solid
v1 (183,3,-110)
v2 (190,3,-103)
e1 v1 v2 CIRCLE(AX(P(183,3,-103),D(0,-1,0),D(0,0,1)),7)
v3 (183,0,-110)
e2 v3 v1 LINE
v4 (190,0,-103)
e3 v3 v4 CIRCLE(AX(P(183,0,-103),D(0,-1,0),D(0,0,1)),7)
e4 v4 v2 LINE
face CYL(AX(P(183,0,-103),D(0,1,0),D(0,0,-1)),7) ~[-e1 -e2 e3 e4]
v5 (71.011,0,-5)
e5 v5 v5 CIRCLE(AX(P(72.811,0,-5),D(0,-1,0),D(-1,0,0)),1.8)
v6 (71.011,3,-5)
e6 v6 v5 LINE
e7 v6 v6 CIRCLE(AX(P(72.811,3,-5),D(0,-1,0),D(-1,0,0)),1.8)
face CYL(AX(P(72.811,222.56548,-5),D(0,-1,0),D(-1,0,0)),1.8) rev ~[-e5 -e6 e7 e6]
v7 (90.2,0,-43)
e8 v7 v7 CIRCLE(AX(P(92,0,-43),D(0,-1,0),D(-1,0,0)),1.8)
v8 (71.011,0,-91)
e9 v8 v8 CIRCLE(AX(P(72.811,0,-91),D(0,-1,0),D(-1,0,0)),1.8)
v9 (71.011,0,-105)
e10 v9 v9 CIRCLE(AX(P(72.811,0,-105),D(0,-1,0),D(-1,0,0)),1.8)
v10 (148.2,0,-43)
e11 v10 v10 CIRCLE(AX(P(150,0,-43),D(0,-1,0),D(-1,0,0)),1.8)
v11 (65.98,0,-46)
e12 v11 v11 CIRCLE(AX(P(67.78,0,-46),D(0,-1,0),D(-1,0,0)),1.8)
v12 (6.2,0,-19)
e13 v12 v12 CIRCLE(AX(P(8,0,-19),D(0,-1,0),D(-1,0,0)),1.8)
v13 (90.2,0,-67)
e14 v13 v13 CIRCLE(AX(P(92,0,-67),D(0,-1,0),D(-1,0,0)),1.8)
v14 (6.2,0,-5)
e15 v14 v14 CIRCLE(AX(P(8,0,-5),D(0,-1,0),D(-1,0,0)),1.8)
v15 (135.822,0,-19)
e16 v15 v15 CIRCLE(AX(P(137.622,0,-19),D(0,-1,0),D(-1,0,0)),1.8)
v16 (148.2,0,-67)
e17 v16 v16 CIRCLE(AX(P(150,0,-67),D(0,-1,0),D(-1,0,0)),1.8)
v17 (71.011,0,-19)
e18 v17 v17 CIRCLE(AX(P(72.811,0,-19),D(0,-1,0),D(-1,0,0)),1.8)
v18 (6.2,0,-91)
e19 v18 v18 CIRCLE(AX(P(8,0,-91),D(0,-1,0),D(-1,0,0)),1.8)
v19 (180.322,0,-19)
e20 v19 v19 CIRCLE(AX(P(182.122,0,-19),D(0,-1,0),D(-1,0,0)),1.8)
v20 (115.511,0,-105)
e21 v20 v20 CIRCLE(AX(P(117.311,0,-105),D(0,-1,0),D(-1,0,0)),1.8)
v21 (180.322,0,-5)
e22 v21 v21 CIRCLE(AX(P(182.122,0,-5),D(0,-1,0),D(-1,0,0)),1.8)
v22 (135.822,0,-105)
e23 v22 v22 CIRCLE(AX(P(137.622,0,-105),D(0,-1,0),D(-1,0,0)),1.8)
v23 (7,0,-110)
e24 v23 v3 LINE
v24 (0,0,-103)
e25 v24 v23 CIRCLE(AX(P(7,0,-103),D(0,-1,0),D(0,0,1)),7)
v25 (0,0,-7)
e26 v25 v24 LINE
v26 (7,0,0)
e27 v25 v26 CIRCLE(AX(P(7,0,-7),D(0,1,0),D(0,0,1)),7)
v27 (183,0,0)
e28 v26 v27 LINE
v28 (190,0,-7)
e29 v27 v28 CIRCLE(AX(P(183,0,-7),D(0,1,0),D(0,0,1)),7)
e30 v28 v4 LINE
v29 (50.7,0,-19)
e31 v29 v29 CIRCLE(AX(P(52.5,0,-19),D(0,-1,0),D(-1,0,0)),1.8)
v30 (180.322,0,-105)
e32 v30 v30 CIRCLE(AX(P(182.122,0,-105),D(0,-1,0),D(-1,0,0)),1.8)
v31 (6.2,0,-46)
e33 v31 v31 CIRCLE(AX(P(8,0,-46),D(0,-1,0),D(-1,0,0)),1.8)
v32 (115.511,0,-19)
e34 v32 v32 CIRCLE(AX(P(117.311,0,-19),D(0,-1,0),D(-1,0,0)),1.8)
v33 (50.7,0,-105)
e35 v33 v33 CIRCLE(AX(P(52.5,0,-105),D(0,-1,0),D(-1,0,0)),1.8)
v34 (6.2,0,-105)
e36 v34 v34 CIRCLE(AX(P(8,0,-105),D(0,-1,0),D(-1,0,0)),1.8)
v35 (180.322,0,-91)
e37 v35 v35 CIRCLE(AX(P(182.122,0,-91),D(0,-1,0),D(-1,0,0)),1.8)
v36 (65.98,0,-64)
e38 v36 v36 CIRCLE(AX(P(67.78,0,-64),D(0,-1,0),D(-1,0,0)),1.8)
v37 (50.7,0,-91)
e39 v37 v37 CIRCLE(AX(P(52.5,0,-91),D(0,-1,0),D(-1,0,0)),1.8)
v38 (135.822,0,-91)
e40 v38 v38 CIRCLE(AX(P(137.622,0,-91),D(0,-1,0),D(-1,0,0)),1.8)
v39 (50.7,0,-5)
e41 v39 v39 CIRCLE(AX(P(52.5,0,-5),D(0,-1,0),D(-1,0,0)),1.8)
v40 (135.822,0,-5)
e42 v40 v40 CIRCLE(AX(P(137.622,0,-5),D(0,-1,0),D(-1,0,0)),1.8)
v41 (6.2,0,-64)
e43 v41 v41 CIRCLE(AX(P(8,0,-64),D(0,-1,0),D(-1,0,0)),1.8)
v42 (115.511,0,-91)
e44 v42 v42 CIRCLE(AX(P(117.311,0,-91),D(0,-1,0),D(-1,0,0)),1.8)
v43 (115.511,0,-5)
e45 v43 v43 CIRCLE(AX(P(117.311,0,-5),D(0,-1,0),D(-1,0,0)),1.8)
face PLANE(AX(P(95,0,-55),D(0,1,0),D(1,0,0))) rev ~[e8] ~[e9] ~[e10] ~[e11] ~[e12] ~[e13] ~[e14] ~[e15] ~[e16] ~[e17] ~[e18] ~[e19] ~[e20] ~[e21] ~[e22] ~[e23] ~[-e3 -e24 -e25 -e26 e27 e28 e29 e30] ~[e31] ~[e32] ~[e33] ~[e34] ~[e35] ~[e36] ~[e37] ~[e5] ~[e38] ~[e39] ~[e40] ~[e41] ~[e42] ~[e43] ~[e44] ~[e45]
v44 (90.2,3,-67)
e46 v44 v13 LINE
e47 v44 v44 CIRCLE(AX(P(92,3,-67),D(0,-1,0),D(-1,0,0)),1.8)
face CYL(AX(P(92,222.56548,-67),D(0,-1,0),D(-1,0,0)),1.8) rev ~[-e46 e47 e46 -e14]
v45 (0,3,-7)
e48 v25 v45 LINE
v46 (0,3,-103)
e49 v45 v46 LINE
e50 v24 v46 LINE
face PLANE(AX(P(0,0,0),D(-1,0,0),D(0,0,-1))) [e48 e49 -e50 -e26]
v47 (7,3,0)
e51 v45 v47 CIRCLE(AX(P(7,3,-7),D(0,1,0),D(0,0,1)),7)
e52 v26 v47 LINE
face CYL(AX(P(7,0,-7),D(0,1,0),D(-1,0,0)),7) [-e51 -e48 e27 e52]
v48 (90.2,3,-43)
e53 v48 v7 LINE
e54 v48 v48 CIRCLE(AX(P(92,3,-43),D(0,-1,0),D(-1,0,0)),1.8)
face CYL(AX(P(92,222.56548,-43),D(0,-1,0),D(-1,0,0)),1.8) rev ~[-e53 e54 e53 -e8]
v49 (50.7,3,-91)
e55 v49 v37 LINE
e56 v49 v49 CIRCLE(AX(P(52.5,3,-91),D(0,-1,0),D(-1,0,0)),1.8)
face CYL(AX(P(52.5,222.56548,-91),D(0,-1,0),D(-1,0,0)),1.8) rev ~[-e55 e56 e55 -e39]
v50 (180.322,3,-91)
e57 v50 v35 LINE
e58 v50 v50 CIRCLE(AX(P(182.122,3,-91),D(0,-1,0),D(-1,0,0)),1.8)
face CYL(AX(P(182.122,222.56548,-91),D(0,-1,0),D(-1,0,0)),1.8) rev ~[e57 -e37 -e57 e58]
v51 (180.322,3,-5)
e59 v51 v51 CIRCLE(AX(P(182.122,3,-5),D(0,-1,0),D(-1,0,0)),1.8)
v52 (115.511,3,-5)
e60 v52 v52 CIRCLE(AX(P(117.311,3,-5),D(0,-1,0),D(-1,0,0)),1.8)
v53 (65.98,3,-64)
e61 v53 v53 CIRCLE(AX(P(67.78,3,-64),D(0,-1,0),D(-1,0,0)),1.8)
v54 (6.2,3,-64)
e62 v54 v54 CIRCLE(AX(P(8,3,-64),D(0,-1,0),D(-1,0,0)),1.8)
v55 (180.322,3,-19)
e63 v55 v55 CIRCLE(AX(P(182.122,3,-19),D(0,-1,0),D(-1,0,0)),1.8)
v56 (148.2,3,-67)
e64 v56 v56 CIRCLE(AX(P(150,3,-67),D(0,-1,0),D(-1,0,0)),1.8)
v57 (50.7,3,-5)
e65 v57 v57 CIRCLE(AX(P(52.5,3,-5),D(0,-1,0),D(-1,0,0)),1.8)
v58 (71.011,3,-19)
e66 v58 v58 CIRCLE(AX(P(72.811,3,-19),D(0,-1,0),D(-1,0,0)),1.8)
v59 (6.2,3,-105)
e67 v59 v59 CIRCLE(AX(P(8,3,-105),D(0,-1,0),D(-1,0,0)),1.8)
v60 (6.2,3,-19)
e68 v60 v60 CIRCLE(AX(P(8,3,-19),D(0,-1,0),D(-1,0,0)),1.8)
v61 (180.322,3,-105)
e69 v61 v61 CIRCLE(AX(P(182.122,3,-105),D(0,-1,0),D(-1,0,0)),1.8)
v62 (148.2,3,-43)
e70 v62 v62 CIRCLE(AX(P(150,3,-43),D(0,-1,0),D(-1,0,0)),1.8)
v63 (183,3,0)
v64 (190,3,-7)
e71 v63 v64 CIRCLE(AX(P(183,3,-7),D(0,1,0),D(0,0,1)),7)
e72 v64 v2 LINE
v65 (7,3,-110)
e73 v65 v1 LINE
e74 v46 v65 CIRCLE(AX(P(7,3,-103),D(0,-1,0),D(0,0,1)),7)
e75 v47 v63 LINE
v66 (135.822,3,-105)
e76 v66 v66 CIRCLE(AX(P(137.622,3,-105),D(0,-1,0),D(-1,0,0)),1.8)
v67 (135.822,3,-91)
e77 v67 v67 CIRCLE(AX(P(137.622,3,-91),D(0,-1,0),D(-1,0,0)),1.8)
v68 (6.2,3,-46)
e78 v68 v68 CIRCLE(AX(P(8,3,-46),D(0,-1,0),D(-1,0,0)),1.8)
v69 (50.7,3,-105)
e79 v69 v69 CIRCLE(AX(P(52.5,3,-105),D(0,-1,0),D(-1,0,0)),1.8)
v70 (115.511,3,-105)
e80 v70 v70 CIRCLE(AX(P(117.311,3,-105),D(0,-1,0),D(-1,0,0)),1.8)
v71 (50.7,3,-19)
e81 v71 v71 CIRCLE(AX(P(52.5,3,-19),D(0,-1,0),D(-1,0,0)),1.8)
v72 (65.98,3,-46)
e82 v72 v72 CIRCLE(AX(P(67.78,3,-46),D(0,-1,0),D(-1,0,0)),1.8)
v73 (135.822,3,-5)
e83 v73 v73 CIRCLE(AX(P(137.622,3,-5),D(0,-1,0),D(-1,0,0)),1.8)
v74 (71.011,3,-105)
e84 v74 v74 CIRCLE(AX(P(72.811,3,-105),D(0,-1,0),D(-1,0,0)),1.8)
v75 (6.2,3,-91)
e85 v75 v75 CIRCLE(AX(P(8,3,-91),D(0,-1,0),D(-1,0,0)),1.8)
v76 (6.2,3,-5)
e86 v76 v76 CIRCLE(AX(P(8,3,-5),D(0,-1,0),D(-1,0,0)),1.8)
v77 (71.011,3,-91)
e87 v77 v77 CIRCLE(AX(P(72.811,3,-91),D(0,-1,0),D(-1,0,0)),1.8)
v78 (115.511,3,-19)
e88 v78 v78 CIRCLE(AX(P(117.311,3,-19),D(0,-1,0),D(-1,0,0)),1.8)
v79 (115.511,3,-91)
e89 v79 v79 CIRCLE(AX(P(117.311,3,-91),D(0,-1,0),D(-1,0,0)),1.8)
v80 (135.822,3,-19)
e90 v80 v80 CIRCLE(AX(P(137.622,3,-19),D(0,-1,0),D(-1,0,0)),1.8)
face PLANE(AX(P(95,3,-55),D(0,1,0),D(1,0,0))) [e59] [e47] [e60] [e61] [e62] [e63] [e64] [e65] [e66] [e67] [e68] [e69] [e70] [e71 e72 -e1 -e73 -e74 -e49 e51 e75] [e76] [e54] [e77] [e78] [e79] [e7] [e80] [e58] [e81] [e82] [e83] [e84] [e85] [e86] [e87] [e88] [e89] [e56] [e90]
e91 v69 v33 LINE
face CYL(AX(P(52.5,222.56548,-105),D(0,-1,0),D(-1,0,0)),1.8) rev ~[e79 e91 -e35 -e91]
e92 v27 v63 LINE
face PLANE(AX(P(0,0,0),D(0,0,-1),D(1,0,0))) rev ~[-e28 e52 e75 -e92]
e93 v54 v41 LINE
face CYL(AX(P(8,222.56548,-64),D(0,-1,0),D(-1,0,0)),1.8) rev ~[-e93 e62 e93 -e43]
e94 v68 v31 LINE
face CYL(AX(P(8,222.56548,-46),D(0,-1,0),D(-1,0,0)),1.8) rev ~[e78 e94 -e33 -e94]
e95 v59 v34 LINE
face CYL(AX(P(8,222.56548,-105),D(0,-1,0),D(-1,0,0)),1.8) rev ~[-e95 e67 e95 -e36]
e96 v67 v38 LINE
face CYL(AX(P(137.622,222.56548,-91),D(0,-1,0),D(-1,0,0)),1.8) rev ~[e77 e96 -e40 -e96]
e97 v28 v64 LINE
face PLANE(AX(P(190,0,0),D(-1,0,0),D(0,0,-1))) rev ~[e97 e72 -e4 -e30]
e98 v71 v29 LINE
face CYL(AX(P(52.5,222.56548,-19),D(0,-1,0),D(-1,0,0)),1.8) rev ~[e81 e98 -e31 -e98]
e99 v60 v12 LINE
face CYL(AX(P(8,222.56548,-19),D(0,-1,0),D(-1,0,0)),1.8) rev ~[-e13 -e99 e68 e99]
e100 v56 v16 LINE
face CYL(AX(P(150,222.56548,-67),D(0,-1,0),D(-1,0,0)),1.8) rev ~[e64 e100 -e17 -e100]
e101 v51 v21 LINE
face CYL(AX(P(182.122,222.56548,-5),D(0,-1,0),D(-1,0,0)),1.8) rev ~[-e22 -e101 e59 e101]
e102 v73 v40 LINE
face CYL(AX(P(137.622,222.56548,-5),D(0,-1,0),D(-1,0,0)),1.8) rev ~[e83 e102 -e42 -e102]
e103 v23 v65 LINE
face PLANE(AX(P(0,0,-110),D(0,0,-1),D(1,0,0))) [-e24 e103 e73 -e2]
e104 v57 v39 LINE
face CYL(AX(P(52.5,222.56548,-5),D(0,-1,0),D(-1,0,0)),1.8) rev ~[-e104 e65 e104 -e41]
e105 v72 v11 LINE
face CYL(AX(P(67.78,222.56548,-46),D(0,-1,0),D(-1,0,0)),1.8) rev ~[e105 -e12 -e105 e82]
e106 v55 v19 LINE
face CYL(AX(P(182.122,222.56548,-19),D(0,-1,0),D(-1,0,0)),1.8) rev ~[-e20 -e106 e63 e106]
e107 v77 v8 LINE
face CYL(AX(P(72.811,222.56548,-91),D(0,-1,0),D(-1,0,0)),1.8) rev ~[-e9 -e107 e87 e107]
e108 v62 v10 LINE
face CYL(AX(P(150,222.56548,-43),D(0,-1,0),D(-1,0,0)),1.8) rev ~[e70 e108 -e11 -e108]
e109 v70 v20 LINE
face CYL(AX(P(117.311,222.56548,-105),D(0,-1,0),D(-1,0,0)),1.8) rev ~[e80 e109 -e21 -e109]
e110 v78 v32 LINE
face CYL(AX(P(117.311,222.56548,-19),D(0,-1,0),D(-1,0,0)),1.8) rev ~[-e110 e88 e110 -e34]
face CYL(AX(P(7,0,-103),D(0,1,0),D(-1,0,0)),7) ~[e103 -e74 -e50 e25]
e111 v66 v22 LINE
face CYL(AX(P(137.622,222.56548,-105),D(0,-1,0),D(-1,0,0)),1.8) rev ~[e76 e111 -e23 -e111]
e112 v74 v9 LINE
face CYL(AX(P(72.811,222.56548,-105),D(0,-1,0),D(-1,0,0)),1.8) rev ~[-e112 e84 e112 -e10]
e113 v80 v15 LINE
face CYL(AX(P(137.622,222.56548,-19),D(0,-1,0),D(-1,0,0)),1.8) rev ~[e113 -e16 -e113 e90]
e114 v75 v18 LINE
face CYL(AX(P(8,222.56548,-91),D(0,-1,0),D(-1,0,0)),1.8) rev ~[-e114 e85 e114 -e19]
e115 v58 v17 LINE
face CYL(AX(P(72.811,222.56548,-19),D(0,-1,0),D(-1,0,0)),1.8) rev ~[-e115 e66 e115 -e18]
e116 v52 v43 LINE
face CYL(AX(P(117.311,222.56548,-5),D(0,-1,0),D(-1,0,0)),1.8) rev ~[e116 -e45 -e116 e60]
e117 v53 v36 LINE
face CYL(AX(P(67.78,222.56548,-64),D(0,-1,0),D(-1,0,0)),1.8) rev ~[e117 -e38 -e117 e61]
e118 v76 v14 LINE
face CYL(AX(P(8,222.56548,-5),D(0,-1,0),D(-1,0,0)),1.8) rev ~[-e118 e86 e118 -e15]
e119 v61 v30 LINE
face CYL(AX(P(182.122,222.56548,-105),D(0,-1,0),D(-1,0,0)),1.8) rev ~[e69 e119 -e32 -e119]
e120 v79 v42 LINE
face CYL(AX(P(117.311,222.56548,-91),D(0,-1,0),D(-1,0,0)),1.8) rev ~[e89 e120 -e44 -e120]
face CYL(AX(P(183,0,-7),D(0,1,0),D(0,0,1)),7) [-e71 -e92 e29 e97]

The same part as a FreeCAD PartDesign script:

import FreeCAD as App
import Part
import Sketcher

V = App.Vector
Q = App.Units.Quantity


def edges_at(feature, points):
    """Names of the edges that pass closest to the given points."""
    edges = feature.Shape.Edges
    near = lambda p: min(range(len(edges)), key=lambda i: edges[i].distToShape(Part.Vertex(*p))[0])
    return sorted({f"Edge{near(p) + 1}" for p in points})

doc = App.newDocument("Part")
body = doc.addObject("PartDesign::Body", "Body")

# Sketch on XZ plane
sketch1 = body.newObject("Sketcher::SketchObject", "Sketch")
sketch1.AttachmentSupport = (doc.getObject("XZ_Plane"), [""])
sketch1.MapMode = "FlatFace"
sketch1.addGeometry([
    Part.LineSegment(V(0, -110, 0), V(0, 0, 0)),
    Part.LineSegment(V(0, 0, 0), V(190, 0, 0)),
    Part.LineSegment(V(190, 0, 0), V(190, -110, 0)),
    Part.LineSegment(V(190, -110, 0), V(0, -110, 0)),
], False)
sketch1.addConstraint([
    Sketcher.Constraint("Coincident", 0, 2, 1, 1),
    Sketcher.Constraint("Coincident", 1, 2, 2, 1),
    Sketcher.Constraint("Coincident", 2, 2, 3, 1),
    Sketcher.Constraint("Coincident", 3, 2, 0, 1),
    Sketcher.Constraint("Vertical", 0),
    Sketcher.Constraint("Horizontal", 1),
    Sketcher.Constraint("Vertical", 2),
    Sketcher.Constraint("Horizontal", 3),
    Sketcher.Constraint("Coincident", 0, 2, -1, 1),
    Sketcher.Constraint("DistanceX", 1, 1, 1, 2, Q("190 mm")),
    Sketcher.Constraint("DistanceY", 0, 1, 0, 2, Q("110 mm")),
])
pad1 = body.newObject("PartDesign::Pad", "Pad")
pad1.Profile = sketch1
pad1.Length = 3
pad1.Reversed = True

# Sketch on XZ plane
sketch2 = body.newObject("Sketcher::SketchObject", "Sketch001")
sketch2.AttachmentSupport = (doc.getObject("XZ_Plane"), [""])
sketch2.MapMode = "FlatFace"
sketch2.AttachmentOffset = App.Placement(V(0, 0, -3), App.Rotation())
sketch2.addGeometry([
    Part.Circle(V(8, -105, 0), V(0, 0, 1), 1.8),  # 0
    Part.Circle(V(52.5, -105, 0), V(0, 0, 1), 1.8),  # 1
    Part.Circle(V(52.5, -91, 0), V(0, 0, 1), 1.8),  # 2
    Part.Circle(V(8, -91, 0), V(0, 0, 1), 1.8),  # 3
    Part.Circle(V(52.5, -19, 0), V(0, 0, 1), 1.8),  # 4
    Part.Circle(V(52.5, -5, 0), V(0, 0, 1), 1.8),  # 5
    Part.Circle(V(8, -19, 0), V(0, 0, 1), 1.8),  # 6
    Part.Circle(V(8, -5, 0), V(0, 0, 1), 1.8),  # 7
    Part.Circle(V(72.8, -105, 0), V(0, 0, 1), 1.8),  # 8
    Part.Circle(V(117.3, -105, 0), V(0, 0, 1), 1.8),  # 9
    Part.Circle(V(117.3, -91, 0), V(0, 0, 1), 1.8),  # 10
    Part.Circle(V(72.8, -91, 0), V(0, 0, 1), 1.8),  # 11
    Part.Circle(V(137.6, -105, 0), V(0, 0, 1), 1.8),  # 12
    Part.Circle(V(182.1, -105, 0), V(0, 0, 1), 1.8),  # 13
    Part.Circle(V(182.1, -91, 0), V(0, 0, 1), 1.8),  # 14
    Part.Circle(V(137.6, -91, 0), V(0, 0, 1), 1.8),  # 15
    Part.Circle(V(72.8, -19, 0), V(0, 0, 1), 1.8),  # 16
    Part.Circle(V(117.3, -19, 0), V(0, 0, 1), 1.8),  # 17
    Part.Circle(V(137.6, -19, 0), V(0, 0, 1), 1.8),  # 18
    Part.Circle(V(182.1, -19, 0), V(0, 0, 1), 1.8),  # 19
    Part.Circle(V(182.1, -5, 0), V(0, 0, 1), 1.8),  # 20
    Part.Circle(V(137.6, -5, 0), V(0, 0, 1), 1.8),  # 21
    Part.Circle(V(117.3, -5, 0), V(0, 0, 1), 1.8),  # 22
    Part.Circle(V(72.8, -5, 0), V(0, 0, 1), 1.8),  # 23
    Part.Circle(V(8, -64, 0), V(0, 0, 1), 1.8),  # 24
    Part.Circle(V(8, -46, 0), V(0, 0, 1), 1.8),  # 25
    Part.Circle(V(67.8, -64, 0), V(0, 0, 1), 1.8),  # 26
    Part.Circle(V(67.8, -46, 0), V(0, 0, 1), 1.8),  # 27
    Part.Circle(V(92, -67, 0), V(0, 0, 1), 1.8),  # 28
    Part.Circle(V(92, -43, 0), V(0, 0, 1), 1.8),  # 29
    Part.Circle(V(150, -43, 0), V(0, 0, 1), 1.8),  # 30
    Part.Circle(V(150, -67, 0), V(0, 0, 1), 1.8),  # 31
], False)
sketch2.addConstraint([
    Sketcher.Constraint("Equal", 0, 1),
    Sketcher.Constraint("Equal", 1, 2),
    Sketcher.Constraint("Equal", 2, 3),
    Sketcher.Constraint("Equal", 3, 4),
    Sketcher.Constraint("Equal", 4, 5),
    Sketcher.Constraint("Equal", 5, 6),
    Sketcher.Constraint("Equal", 6, 7),
    Sketcher.Constraint("Equal", 7, 8),
    Sketcher.Constraint("Equal", 8, 9),
    Sketcher.Constraint("Equal", 9, 10),
    Sketcher.Constraint("Equal", 10, 11),
    Sketcher.Constraint("Equal", 11, 12),
    Sketcher.Constraint("Equal", 12, 13),
    Sketcher.Constraint("Equal", 13, 14),
    Sketcher.Constraint("Equal", 14, 15),
    Sketcher.Constraint("Equal", 15, 16),
    Sketcher.Constraint("Equal", 16, 17),
    Sketcher.Constraint("Equal", 17, 18),
    Sketcher.Constraint("Equal", 18, 19),
    Sketcher.Constraint("Equal", 19, 20),
    Sketcher.Constraint("Equal", 20, 21),
    Sketcher.Constraint("Equal", 21, 22),
    Sketcher.Constraint("Equal", 22, 23),
    Sketcher.Constraint("Equal", 23, 24),
    Sketcher.Constraint("Equal", 24, 25),
    Sketcher.Constraint("Equal", 25, 26),
    Sketcher.Constraint("Equal", 26, 27),
    Sketcher.Constraint("Equal", 27, 28),
    Sketcher.Constraint("Equal", 28, 29),
    Sketcher.Constraint("Equal", 29, 30),
    Sketcher.Constraint("Equal", 30, 31),
    Sketcher.Constraint("Horizontal", 0, 3, 1, 3),
    Sketcher.Constraint("Horizontal", 2, 3, 3, 3),
    Sketcher.Constraint("Horizontal", 4, 3, 6, 3),
    Sketcher.Constraint("Horizontal", 5, 3, 7, 3),
    Sketcher.Constraint("Horizontal", 1, 3, 8, 3),
    Sketcher.Constraint("Horizontal", 8, 3, 9, 3),
    Sketcher.Constraint("Horizontal", 3, 3, 10, 3),
    Sketcher.Constraint("Horizontal", 10, 3, 11, 3),
    Sketcher.Constraint("Horizontal", 9, 3, 12, 3),
    Sketcher.Constraint("Horizontal", 12, 3, 13, 3),
    Sketcher.Constraint("Horizontal", 11, 3, 14, 3),
    Sketcher.Constraint("Horizontal", 14, 3, 15, 3),
    Sketcher.Constraint("Horizontal", 6, 3, 16, 3),
    Sketcher.Constraint("Horizontal", 16, 3, 17, 3),
    Sketcher.Constraint("Horizontal", 17, 3, 18, 3),
    Sketcher.Constraint("Horizontal", 18, 3, 19, 3),
    Sketcher.Constraint("Horizontal", 7, 3, 20, 3),
    Sketcher.Constraint("Horizontal", 20, 3, 21, 3),
    Sketcher.Constraint("Horizontal", 21, 3, 22, 3),
    Sketcher.Constraint("Horizontal", 22, 3, 23, 3),
    Sketcher.Constraint("Horizontal", 24, 3, 26, 3),
    Sketcher.Constraint("Horizontal", 25, 3, 27, 3),
    Sketcher.Constraint("Horizontal", 29, 3, 30, 3),
    Sketcher.Constraint("Horizontal", 28, 3, 31, 3),
    Sketcher.Constraint("Vertical", 1, 3, 2, 3),
    Sketcher.Constraint("Vertical", 0, 3, 3, 3),
    Sketcher.Constraint("Vertical", 2, 3, 4, 3),
    Sketcher.Constraint("Vertical", 4, 3, 5, 3),
    Sketcher.Constraint("Vertical", 3, 3, 6, 3),
    Sketcher.Constraint("Vertical", 6, 3, 7, 3),
    Sketcher.Constraint("Vertical", 9, 3, 10, 3),
    Sketcher.Constraint("Vertical", 8, 3, 11, 3),
    Sketcher.Constraint("Vertical", 13, 3, 14, 3),
    Sketcher.Constraint("Vertical", 12, 3, 15, 3),
    Sketcher.Constraint("Vertical", 11, 3, 16, 3),
    Sketcher.Constraint("Vertical", 10, 3, 17, 3),
    Sketcher.Constraint("Vertical", 15, 3, 18, 3),
    Sketcher.Constraint("Vertical", 14, 3, 19, 3),
    Sketcher.Constraint("Vertical", 19, 3, 20, 3),
    Sketcher.Constraint("Vertical", 18, 3, 21, 3),
    Sketcher.Constraint("Vertical", 17, 3, 22, 3),
    Sketcher.Constraint("Vertical", 16, 3, 23, 3),
    Sketcher.Constraint("Vertical", 7, 3, 24, 3),
    Sketcher.Constraint("Vertical", 24, 3, 25, 3),
    Sketcher.Constraint("Vertical", 26, 3, 27, 3),
    Sketcher.Constraint("Vertical", 28, 3, 29, 3),
    Sketcher.Constraint("Vertical", 30, 3, 31, 3),
    Sketcher.Constraint("Diameter", 0, Q("3.6 mm")),
    Sketcher.Constraint("DistanceX", -1, 1, 0, 3, Q("8 mm")),
    Sketcher.Constraint("DistanceY", 0, 3, -1, 1, Q("105 mm")),
    Sketcher.Constraint("DistanceY", 2, 3, -1, 1, Q("91 mm")),
    Sketcher.Constraint("DistanceY", 4, 3, -1, 1, Q("19 mm")),
    Sketcher.Constraint("DistanceY", 5, 3, -1, 1, Q("5 mm")),
    Sketcher.Constraint("DistanceY", 24, 3, -1, 1, Q("64 mm")),
    Sketcher.Constraint("DistanceY", 25, 3, -1, 1, Q("46 mm")),
    Sketcher.Constraint("DistanceX", -1, 1, 28, 3, Q("92 mm")),
    Sketcher.Constraint("DistanceY", 28, 3, -1, 1, Q("67 mm")),
    Sketcher.Constraint("DistanceY", 29, 3, -1, 1, Q("43 mm")),
    Sketcher.Constraint("DistanceX", -1, 1, 30, 3, Q("150 mm")),
    Sketcher.Constraint("DistanceX", -1, 1, 1, 3, Q("52.5 mm")),
    Sketcher.Constraint("DistanceX", 8, 3, 9, 3, Q("44.5 mm")),
    Sketcher.Constraint("DistanceX", 12, 3, 13, 3, Q("44.5 mm")),
    Sketcher.Constraint("DistanceX", -1, 1, 26, 3, Q("67.78 mm")),
    Sketcher.Constraint("DistanceX", -1, 1, 8, 3, Q("72.811 mm")),
    Sketcher.Constraint("DistanceX", -1, 1, 12, 3, Q("137.622 mm")),
])
doc.recompute()
hole = body.newObject("PartDesign::Hole", "Hole")
hole.Profile = sketch2
hole.ThreadType = "None"
hole.Diameter = 3.6
hole.DepthType = "ThroughAll"
hole.Reversed = True
doc.recompute()

fillet = body.newObject("PartDesign::Fillet", "Fillet")
fillet.Base = (hole, edges_at(hole, [
    (0, 1.5, -110),
    (190, 1.5, -110),
    (190, 1.5, 0),
    (0, 1.5, 0),
]))
fillet.Radius = 7

doc.recompute()
